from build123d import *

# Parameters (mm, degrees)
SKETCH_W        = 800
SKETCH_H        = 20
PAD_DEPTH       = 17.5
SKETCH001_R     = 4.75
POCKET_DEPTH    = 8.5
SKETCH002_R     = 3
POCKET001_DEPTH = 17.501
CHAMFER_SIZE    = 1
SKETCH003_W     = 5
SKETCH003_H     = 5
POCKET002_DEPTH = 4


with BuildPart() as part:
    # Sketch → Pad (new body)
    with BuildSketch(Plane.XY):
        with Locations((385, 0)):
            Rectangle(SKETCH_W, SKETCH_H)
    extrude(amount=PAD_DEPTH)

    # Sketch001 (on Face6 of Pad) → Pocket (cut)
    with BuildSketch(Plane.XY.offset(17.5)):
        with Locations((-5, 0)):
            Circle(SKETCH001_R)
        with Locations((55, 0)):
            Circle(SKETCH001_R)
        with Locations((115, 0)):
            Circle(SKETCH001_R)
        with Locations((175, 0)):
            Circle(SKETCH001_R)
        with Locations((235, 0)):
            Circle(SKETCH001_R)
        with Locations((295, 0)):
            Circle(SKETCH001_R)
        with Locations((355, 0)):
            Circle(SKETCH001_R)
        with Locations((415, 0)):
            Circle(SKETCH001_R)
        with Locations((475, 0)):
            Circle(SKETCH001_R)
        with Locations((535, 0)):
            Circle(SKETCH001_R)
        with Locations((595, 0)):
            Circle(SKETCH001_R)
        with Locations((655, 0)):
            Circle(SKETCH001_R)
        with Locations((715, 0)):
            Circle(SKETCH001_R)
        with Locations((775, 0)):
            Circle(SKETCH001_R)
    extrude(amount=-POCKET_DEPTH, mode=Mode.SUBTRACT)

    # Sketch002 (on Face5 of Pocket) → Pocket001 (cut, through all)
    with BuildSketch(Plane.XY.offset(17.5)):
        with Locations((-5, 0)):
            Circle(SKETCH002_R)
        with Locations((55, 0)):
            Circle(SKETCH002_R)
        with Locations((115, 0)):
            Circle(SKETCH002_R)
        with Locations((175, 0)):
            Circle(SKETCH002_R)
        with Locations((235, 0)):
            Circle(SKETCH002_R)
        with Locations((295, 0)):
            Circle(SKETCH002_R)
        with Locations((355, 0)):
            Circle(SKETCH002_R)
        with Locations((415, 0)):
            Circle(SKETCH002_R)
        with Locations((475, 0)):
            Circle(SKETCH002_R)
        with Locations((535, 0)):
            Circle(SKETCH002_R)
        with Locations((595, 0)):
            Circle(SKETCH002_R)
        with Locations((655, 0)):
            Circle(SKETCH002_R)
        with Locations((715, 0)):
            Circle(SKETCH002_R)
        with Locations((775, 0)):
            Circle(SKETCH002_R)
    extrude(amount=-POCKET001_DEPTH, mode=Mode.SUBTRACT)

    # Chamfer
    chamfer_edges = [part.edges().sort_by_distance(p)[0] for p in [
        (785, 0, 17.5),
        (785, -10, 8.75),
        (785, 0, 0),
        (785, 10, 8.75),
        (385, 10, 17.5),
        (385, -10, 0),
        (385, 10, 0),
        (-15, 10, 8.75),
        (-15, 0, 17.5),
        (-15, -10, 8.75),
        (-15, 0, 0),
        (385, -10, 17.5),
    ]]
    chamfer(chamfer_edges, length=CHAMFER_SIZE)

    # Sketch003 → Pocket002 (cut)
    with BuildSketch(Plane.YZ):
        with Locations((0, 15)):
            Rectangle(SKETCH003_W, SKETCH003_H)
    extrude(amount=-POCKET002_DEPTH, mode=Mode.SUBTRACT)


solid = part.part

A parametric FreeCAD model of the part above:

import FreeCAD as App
import Part
import Sketcher
Q = App.Units.Quantity


def edges_at(feature, points):
    """Names of the edges that pass closest to the given points."""
    edges = feature.Shape.Edges
    near = lambda p: min(range(len(edges)), key=lambda i: edges[i].distToShape(Part.Vertex(*p))[0])
    return sorted({f"Edge{near(p) + 1}" for p in points})

doc = App.newDocument("Part")
params = doc.addObject("Spreadsheet::Sheet", "Params")
for row, (alias, value) in enumerate([
    ("sketch1_width", "800 mm"),
    ("sketch1_height", "20 mm"),
    ("pad1_length", "17.5 mm"),
    ("sketch2_diameter", "9.5 mm"),
    ("pocket1_length", "8.5 mm"),
    ("sketch3_diameter", "6 mm"),
    ("chamfer_size", "1 mm"),
    ("sketch4_width", "5 mm"),
    ("pocket3_length", "4 mm"),
], start=1):
    params.set(f"A{row}", alias)
    params.set(f"B{row}", "=" + value)
    params.setAlias(f"B{row}", alias)

body = doc.addObject("PartDesign::Body", "Body")

# Sketch on XY plane
sketch1 = body.newObject("Sketcher::SketchObject", "Sketch")
sketch1.AttachmentSupport = (doc.getObject("XY_Plane"), [""])
sketch1.MapMode = "FlatFace"
sketch1.addGeometry(Part.LineSegment(App.Vector(-15, 10, 0), App.Vector(-15, -10, 0)), False)
sketch1.addGeometry(Part.LineSegment(App.Vector(-15, -10, 0), App.Vector(785, -10, 0)), False)
sketch1.addGeometry(Part.LineSegment(App.Vector(785, -10, 0), App.Vector(785, 10, 0)), False)
sketch1.addGeometry(Part.LineSegment(App.Vector(785, 10, 0), App.Vector(-15, 10, 0)), False)
sketch1.addConstraint(Sketcher.Constraint("Coincident", 0, 2, 1, 1))
sketch1.addConstraint(Sketcher.Constraint("Coincident", 1, 2, 2, 1))
sketch1.addConstraint(Sketcher.Constraint("Coincident", 2, 2, 3, 1))
sketch1.addConstraint(Sketcher.Constraint("Coincident", 3, 2, 0, 1))
sketch1.addConstraint(Sketcher.Constraint("Vertical", 0))
sketch1.addConstraint(Sketcher.Constraint("Horizontal", 1))
sketch1.addConstraint(Sketcher.Constraint("Vertical", 2))
sketch1.addConstraint(Sketcher.Constraint("Horizontal", 3))
sketch1.addConstraint(Sketcher.Constraint("DistanceX", 1, 1, 1, 2, Q("800 mm")))
sketch1.addConstraint(Sketcher.Constraint("DistanceY", 0, 2, 0, 1, Q("20 mm")))
sketch1.addConstraint(Sketcher.Constraint("DistanceX", 0, 2, -1, 1, Q("15 mm")))
sketch1.addConstraint(Sketcher.Constraint("DistanceY", 0, 2, -1, 1, Q("10 mm")))
sketch1.setExpression("Constraints[8]", "Params.sketch1_width")
sketch1.setExpression("Constraints[9]", "Params.sketch1_height")
pad1 = body.newObject("PartDesign::Pad", "Pad")
pad1.Profile = sketch1
pad1.setExpression("Length", "Params.pad1_length")

# Sketch on XY plane
sketch2 = body.newObject("Sketcher::SketchObject", "Sketch001")
sketch2.AttachmentSupport = (doc.getObject("XY_Plane"), [""])
sketch2.MapMode = "FlatFace"
sketch2.AttachmentOffset = App.Placement(App.Vector(0, 0, 17.5), App.Rotation())
sketch2.addGeometry(Part.Circle(App.Vector(-5, 0, 0), App.Vector(0, 0, 1), 4.75), False)
sketch2.addGeometry(Part.Circle(App.Vector(55, 0, 0), App.Vector(0, 0, 1), 4.75), False)
sketch2.addGeometry(Part.Circle(App.Vector(115, 0, 0), App.Vector(0, 0, 1), 4.75), False)
sketch2.addGeometry(Part.Circle(App.Vector(175, 0, 0), App.Vector(0, 0, 1), 4.75), False)
sketch2.addGeometry(Part.Circle(App.Vector(235, 0, 0), App.Vector(0, 0, 1), 4.75), False)
sketch2.addGeometry(Part.Circle(App.Vector(295, 0, 0), App.Vector(0, 0, 1), 4.75), False)
sketch2.addGeometry(Part.Circle(App.Vector(355, 0, 0), App.Vector(0, 0, 1), 4.75), False)
sketch2.addGeometry(Part.Circle(App.Vector(415, 0, 0), App.Vector(0, 0, 1), 4.75), False)
sketch2.addGeometry(Part.Circle(App.Vector(475, 0, 0), App.Vector(0, 0, 1), 4.75), False)
sketch2.addGeometry(Part.Circle(App.Vector(535, 0, 0), App.Vector(0, 0, 1), 4.75), False)
sketch2.addGeometry(Part.Circle(App.Vector(595, 0, 0), App.Vector(0, 0, 1), 4.75), False)
sketch2.addGeometry(Part.Circle(App.Vector(655, 0, 0), App.Vector(0, 0, 1), 4.75), False)
sketch2.addGeometry(Part.Circle(App.Vector(715, 0, 0), App.Vector(0, 0, 1), 4.75), False)
sketch2.addGeometry(Part.Circle(App.Vector(775, 0, 0), App.Vector(0, 0, 1), 4.75), False)
sketch2.addConstraint(Sketcher.Constraint("Equal", 0, 1))
sketch2.addConstraint(Sketcher.Constraint("Equal", 1, 2))
sketch2.addConstraint(Sketcher.Constraint("Equal", 2, 3))
sketch2.addConstraint(Sketcher.Constraint("Equal", 3, 4))
sketch2.addConstraint(Sketcher.Constraint("Equal", 4, 5))
sketch2.addConstraint(Sketcher.Constraint("Equal", 5, 6))
sketch2.addConstraint(Sketcher.Constraint("Equal", 6, 7))
sketch2.addConstraint(Sketcher.Constraint("Equal", 7, 8))
sketch2.addConstraint(Sketcher.Constraint("Equal", 8, 9))
sketch2.addConstraint(Sketcher.Constraint("Equal", 9, 10))
sketch2.addConstraint(Sketcher.Constraint("Equal", 10, 11))
sketch2.addConstraint(Sketcher.Constraint("Equal", 11, 12))
sketch2.addConstraint(Sketcher.Constraint("Equal", 12, 13))
sketch2.addConstraint(Sketcher.Constraint("PointOnObject", 0, 3, -1))
sketch2.addConstraint(Sketcher.Constraint("PointOnObject", 1, 3, -1))
sketch2.addConstraint(Sketcher.Constraint("PointOnObject", 2, 3, -1))
sketch2.addConstraint(Sketcher.Constraint("PointOnObject", 3, 3, -1))
sketch2.addConstraint(Sketcher.Constraint("PointOnObject", 4, 3, -1))
sketch2.addConstraint(Sketcher.Constraint("PointOnObject", 5, 3, -1))
sketch2.addConstraint(Sketcher.Constraint("PointOnObject", 6, 3, -1))
sketch2.addConstraint(Sketcher.Constraint("PointOnObject", 7, 3, -1))
sketch2.addConstraint(Sketcher.Constraint("PointOnObject", 8, 3, -1))
sketch2.addConstraint(Sketcher.Constraint("PointOnObject", 9, 3, -1))
sketch2.addConstraint(Sketcher.Constraint("PointOnObject", 10, 3, -1))
sketch2.addConstraint(Sketcher.Constraint("PointOnObject", 11, 3, -1))
sketch2.addConstraint(Sketcher.Constraint("PointOnObject", 12, 3, -1))
sketch2.addConstraint(Sketcher.Constraint("PointOnObject", 13, 3, -1))
sketch2.addConstraint(Sketcher.Constraint("Diameter", 0, Q("9.5 mm")))
sketch2.addConstraint(Sketcher.Constraint("DistanceX", 0, 3, -1, 1, Q("5 mm")))
sketch2.addConstraint(Sketcher.Constraint("DistanceX", -1, 1, 1, 3, Q("55 mm")))
sketch2.addConstraint(Sketcher.Constraint("DistanceX", -1, 1, 2, 3, Q("115 mm")))
sketch2.addConstraint(Sketcher.Constraint("DistanceX", -1, 1, 3, 3, Q("175 mm")))
sketch2.addConstraint(Sketcher.Constraint("DistanceX", -1, 1, 4, 3, Q("235 mm")))
sketch2.addConstraint(Sketcher.Constraint("DistanceX", -1, 1, 5, 3, Q("295 mm")))
sketch2.addConstraint(Sketcher.Constraint("DistanceX", -1, 1, 6, 3, Q("355 mm")))
sketch2.addConstraint(Sketcher.Constraint("DistanceX", -1, 1, 7, 3, Q("415 mm")))
sketch2.addConstraint(Sketcher.Constraint("DistanceX", -1, 1, 8, 3, Q("475 mm")))
sketch2.addConstraint(Sketcher.Constraint("DistanceX", -1, 1, 9, 3, Q("535 mm")))
sketch2.addConstraint(Sketcher.Constraint("DistanceX", -1, 1, 10, 3, Q("595 mm")))
sketch2.addConstraint(Sketcher.Constraint("DistanceX", -1, 1, 11, 3, Q("655 mm")))
sketch2.addConstraint(Sketcher.Constraint("DistanceX", -1, 1, 12, 3, Q("715 mm")))
sketch2.addConstraint(Sketcher.Constraint("DistanceX", -1, 1, 13, 3, Q("775 mm")))
sketch2.setExpression("Constraints[27]", "Params.sketch2_diameter")
pocket1 = body.newObject("PartDesign::Pocket", "Pocket")
pocket1.Profile = sketch2
pocket1.setExpression("Length", "Params.pocket1_length")

# Sketch on XY plane
sketch3 = body.newObject("Sketcher::SketchObject", "Sketch002")
sketch3.AttachmentSupport = (doc.getObject("XY_Plane"), [""])
sketch3.MapMode = "FlatFace"
sketch3.AttachmentOffset = App.Placement(App.Vector(0, 0, 17.5), App.Rotation())
sketch3.addGeometry(Part.Circle(App.Vector(-5, 0, 0), App.Vector(0, 0, 1), 3), False)
sketch3.addGeometry(Part.Circle(App.Vector(55, 0, 0), App.Vector(0, 0, 1), 3), False)
sketch3.addGeometry(Part.Circle(App.Vector(115, 0, 0), App.Vector(0, 0, 1), 3), False)
sketch3.addGeometry(Part.Circle(App.Vector(175, 0, 0), App.Vector(0, 0, 1), 3), False)
sketch3.addGeometry(Part.Circle(App.Vector(235, 0, 0), App.Vector(0, 0, 1), 3), False)
sketch3.addGeometry(Part.Circle(App.Vector(295, 0, 0), App.Vector(0, 0, 1), 3), False)
sketch3.addGeometry(Part.Circle(App.Vector(355, 0, 0), App.Vector(0, 0, 1), 3), False)
sketch3.addGeometry(Part.Circle(App.Vector(415, 0, 0), App.Vector(0, 0, 1), 3), False)
sketch3.addGeometry(Part.Circle(App.Vector(475, 0, 0), App.Vector(0, 0, 1), 3), False)
sketch3.addGeometry(Part.Circle(App.Vector(535, 0, 0), App.Vector(0, 0, 1), 3), False)
sketch3.addGeometry(Part.Circle(App.Vector(595, 0, 0), App.Vector(0, 0, 1), 3), False)
sketch3.addGeometry(Part.Circle(App.Vector(655, 0, 0), App.Vector(0, 0, 1), 3), False)
sketch3.addGeometry(Part.Circle(App.Vector(715, 0, 0), App.Vector(0, 0, 1), 3), False)
sketch3.addGeometry(Part.Circle(App.Vector(775, 0, 0), App.Vector(0, 0, 1), 3), False)
sketch3.addConstraint(Sketcher.Constraint("Equal", 0, 1))
sketch3.addConstraint(Sketcher.Constraint("Equal", 1, 2))
sketch3.addConstraint(Sketcher.Constraint("Equal", 2, 3))
sketch3.addConstraint(Sketcher.Constraint("Equal", 3, 4))
sketch3.addConstraint(Sketcher.Constraint("Equal", 4, 5))
sketch3.addConstraint(Sketcher.Constraint("Equal", 5, 6))
sketch3.addConstraint(Sketcher.Constraint("Equal", 6, 7))
sketch3.addConstraint(Sketcher.Constraint("Equal", 7, 8))
sketch3.addConstraint(Sketcher.Constraint("Equal", 8, 9))
sketch3.addConstraint(Sketcher.Constraint("Equal", 9, 10))
sketch3.addConstraint(Sketcher.Constraint("Equal", 10, 11))
sketch3.addConstraint(Sketcher.Constraint("Equal", 11, 12))
sketch3.addConstraint(Sketcher.Constraint("Equal", 12, 13))
sketch3.addConstraint(Sketcher.Constraint("PointOnObject", 0, 3, -1))
sketch3.addConstraint(Sketcher.Constraint("PointOnObject", 1, 3, -1))
sketch3.addConstraint(Sketcher.Constraint("PointOnObject", 2, 3, -1))
sketch3.addConstraint(Sketcher.Constraint("PointOnObject", 3, 3, -1))
sketch3.addConstraint(Sketcher.Constraint("PointOnObject", 4, 3, -1))
sketch3.addConstraint(Sketcher.Constraint("PointOnObject", 5, 3, -1))
sketch3.addConstraint(Sketcher.Constraint("PointOnObject", 6, 3, -1))
sketch3.addConstraint(Sketcher.Constraint("PointOnObject", 7, 3, -1))
sketch3.addConstraint(Sketcher.Constraint("PointOnObject", 8, 3, -1))
sketch3.addConstraint(Sketcher.Constraint("PointOnObject", 9, 3, -1))
sketch3.addConstraint(Sketcher.Constraint("PointOnObject", 10, 3, -1))
sketch3.addConstraint(Sketcher.Constraint("PointOnObject", 11, 3, -1))
sketch3.addConstraint(Sketcher.Constraint("PointOnObject", 12, 3, -1))
sketch3.addConstraint(Sketcher.Constraint("PointOnObject", 13, 3, -1))
sketch3.addConstraint(Sketcher.Constraint("Diameter", 0, Q("6 mm")))
sketch3.addConstraint(Sketcher.Constraint("DistanceX", 0, 3, -1, 1, Q("5 mm")))
sketch3.addConstraint(Sketcher.Constraint("DistanceX", -1, 1, 1, 3, Q("55 mm")))
sketch3.addConstraint(Sketcher.Constraint("DistanceX", -1, 1, 2, 3, Q("115 mm")))
sketch3.addConstraint(Sketcher.Constraint("DistanceX", -1, 1, 3, 3, Q("175 mm")))
sketch3.addConstraint(Sketcher.Constraint("DistanceX", -1, 1, 4, 3, Q("235 mm")))
sketch3.addConstraint(Sketcher.Constraint("DistanceX", -1, 1, 5, 3, Q("295 mm")))
sketch3.addConstraint(Sketcher.Constraint("DistanceX", -1, 1, 6, 3, Q("355 mm")))
sketch3.addConstraint(Sketcher.Constraint("DistanceX", -1, 1, 7, 3, Q("415 mm")))
sketch3.addConstraint(Sketcher.Constraint("DistanceX", -1, 1, 8, 3, Q("475 mm")))
sketch3.addConstraint(Sketcher.Constraint("DistanceX", -1, 1, 9, 3, Q("535 mm")))
sketch3.addConstraint(Sketcher.Constraint("DistanceX", -1, 1, 10, 3, Q("595 mm")))
sketch3.addConstraint(Sketcher.Constraint("DistanceX", -1, 1, 11, 3, Q("655 mm")))
sketch3.addConstraint(Sketcher.Constraint("DistanceX", -1, 1, 12, 3, Q("715 mm")))
sketch3.addConstraint(Sketcher.Constraint("DistanceX", -1, 1, 13, 3, Q("775 mm")))
sketch3.setExpression("Constraints[27]", "Params.sketch3_diameter")
pocket2 = body.newObject("PartDesign::Pocket", "Pocket001")
pocket2.Profile = sketch3
pocket2.Type = "ThroughAll"
doc.recompute()

chamfer = body.newObject("PartDesign::Chamfer", "Chamfer")
chamfer.Base = (pocket2, edges_at(pocket2, [
    (785, 0, 17.5),
    (785, -10, 8.75),
    (785, 0, 0),
    (785, 10, 8.75),
    (385, 10, 17.5),
    (385, -10, 0),
    (385, 10, 0),
    (-15, 10, 8.75),
    (-15, 0, 17.5),
    (-15, -10, 8.75),
    (-15, 0, 0),
    (385, -10, 17.5),
]))
chamfer.setExpression("Size", "Params.chamfer_size")

# Sketch on YZ plane
sketch4 = body.newObject("Sketcher::SketchObject", "Sketch003")
sketch4.AttachmentSupport = (doc.getObject("YZ_Plane"), [""])
sketch4.MapMode = "FlatFace"
sketch4.addGeometry(Part.LineSegment(App.Vector(-2.5, 17.5, 0), App.Vector(-2.5, 12.5, 0)), False)
sketch4.addGeometry(Part.LineSegment(App.Vector(-2.5, 12.5, 0), App.Vector(2.5, 12.5, 0)), False)
sketch4.addGeometry(Part.LineSegment(App.Vector(2.5, 12.5, 0), App.Vector(2.5, 17.5, 0)), False)
sketch4.addGeometry(Part.LineSegment(App.Vector(2.5, 17.5, 0), App.Vector(-2.5, 17.5, 0)), False)
sketch4.addConstraint(Sketcher.Constraint("Coincident", 0, 2, 1, 1))
sketch4.addConstraint(Sketcher.Constraint("Coincident", 1, 2, 2, 1))
sketch4.addConstraint(Sketcher.Constraint("Coincident", 2, 2, 3, 1))
sketch4.addConstraint(Sketcher.Constraint("Coincident", 3, 2, 0, 1))
sketch4.addConstraint(Sketcher.Constraint("Vertical", 0))
sketch4.addConstraint(Sketcher.Constraint("Horizontal", 1))
sketch4.addConstraint(Sketcher.Constraint("Vertical", 2))
sketch4.addConstraint(Sketcher.Constraint("Horizontal", 3))
sketch4.addConstraint(Sketcher.Constraint("Equal", 3, 0))
sketch4.addConstraint(Sketcher.Constraint("DistanceX", 1, 1, 1, 2, Q("5 mm")))
sketch4.addConstraint(Sketcher.Constraint("DistanceX", 0, 2, -1, 1, Q("2.5 mm")))
sketch4.addConstraint(Sketcher.Constraint("DistanceY", -1, 1, 0, 2, Q("12.5 mm")))
sketch4.setExpression("Constraints[9]", "Params.sketch4_width")
pocket3 = body.newObject("PartDesign::Pocket", "Pocket002")
pocket3.Profile = sketch4
pocket3.setExpression("Length", "Params.pocket3_length")

doc.recompute()
